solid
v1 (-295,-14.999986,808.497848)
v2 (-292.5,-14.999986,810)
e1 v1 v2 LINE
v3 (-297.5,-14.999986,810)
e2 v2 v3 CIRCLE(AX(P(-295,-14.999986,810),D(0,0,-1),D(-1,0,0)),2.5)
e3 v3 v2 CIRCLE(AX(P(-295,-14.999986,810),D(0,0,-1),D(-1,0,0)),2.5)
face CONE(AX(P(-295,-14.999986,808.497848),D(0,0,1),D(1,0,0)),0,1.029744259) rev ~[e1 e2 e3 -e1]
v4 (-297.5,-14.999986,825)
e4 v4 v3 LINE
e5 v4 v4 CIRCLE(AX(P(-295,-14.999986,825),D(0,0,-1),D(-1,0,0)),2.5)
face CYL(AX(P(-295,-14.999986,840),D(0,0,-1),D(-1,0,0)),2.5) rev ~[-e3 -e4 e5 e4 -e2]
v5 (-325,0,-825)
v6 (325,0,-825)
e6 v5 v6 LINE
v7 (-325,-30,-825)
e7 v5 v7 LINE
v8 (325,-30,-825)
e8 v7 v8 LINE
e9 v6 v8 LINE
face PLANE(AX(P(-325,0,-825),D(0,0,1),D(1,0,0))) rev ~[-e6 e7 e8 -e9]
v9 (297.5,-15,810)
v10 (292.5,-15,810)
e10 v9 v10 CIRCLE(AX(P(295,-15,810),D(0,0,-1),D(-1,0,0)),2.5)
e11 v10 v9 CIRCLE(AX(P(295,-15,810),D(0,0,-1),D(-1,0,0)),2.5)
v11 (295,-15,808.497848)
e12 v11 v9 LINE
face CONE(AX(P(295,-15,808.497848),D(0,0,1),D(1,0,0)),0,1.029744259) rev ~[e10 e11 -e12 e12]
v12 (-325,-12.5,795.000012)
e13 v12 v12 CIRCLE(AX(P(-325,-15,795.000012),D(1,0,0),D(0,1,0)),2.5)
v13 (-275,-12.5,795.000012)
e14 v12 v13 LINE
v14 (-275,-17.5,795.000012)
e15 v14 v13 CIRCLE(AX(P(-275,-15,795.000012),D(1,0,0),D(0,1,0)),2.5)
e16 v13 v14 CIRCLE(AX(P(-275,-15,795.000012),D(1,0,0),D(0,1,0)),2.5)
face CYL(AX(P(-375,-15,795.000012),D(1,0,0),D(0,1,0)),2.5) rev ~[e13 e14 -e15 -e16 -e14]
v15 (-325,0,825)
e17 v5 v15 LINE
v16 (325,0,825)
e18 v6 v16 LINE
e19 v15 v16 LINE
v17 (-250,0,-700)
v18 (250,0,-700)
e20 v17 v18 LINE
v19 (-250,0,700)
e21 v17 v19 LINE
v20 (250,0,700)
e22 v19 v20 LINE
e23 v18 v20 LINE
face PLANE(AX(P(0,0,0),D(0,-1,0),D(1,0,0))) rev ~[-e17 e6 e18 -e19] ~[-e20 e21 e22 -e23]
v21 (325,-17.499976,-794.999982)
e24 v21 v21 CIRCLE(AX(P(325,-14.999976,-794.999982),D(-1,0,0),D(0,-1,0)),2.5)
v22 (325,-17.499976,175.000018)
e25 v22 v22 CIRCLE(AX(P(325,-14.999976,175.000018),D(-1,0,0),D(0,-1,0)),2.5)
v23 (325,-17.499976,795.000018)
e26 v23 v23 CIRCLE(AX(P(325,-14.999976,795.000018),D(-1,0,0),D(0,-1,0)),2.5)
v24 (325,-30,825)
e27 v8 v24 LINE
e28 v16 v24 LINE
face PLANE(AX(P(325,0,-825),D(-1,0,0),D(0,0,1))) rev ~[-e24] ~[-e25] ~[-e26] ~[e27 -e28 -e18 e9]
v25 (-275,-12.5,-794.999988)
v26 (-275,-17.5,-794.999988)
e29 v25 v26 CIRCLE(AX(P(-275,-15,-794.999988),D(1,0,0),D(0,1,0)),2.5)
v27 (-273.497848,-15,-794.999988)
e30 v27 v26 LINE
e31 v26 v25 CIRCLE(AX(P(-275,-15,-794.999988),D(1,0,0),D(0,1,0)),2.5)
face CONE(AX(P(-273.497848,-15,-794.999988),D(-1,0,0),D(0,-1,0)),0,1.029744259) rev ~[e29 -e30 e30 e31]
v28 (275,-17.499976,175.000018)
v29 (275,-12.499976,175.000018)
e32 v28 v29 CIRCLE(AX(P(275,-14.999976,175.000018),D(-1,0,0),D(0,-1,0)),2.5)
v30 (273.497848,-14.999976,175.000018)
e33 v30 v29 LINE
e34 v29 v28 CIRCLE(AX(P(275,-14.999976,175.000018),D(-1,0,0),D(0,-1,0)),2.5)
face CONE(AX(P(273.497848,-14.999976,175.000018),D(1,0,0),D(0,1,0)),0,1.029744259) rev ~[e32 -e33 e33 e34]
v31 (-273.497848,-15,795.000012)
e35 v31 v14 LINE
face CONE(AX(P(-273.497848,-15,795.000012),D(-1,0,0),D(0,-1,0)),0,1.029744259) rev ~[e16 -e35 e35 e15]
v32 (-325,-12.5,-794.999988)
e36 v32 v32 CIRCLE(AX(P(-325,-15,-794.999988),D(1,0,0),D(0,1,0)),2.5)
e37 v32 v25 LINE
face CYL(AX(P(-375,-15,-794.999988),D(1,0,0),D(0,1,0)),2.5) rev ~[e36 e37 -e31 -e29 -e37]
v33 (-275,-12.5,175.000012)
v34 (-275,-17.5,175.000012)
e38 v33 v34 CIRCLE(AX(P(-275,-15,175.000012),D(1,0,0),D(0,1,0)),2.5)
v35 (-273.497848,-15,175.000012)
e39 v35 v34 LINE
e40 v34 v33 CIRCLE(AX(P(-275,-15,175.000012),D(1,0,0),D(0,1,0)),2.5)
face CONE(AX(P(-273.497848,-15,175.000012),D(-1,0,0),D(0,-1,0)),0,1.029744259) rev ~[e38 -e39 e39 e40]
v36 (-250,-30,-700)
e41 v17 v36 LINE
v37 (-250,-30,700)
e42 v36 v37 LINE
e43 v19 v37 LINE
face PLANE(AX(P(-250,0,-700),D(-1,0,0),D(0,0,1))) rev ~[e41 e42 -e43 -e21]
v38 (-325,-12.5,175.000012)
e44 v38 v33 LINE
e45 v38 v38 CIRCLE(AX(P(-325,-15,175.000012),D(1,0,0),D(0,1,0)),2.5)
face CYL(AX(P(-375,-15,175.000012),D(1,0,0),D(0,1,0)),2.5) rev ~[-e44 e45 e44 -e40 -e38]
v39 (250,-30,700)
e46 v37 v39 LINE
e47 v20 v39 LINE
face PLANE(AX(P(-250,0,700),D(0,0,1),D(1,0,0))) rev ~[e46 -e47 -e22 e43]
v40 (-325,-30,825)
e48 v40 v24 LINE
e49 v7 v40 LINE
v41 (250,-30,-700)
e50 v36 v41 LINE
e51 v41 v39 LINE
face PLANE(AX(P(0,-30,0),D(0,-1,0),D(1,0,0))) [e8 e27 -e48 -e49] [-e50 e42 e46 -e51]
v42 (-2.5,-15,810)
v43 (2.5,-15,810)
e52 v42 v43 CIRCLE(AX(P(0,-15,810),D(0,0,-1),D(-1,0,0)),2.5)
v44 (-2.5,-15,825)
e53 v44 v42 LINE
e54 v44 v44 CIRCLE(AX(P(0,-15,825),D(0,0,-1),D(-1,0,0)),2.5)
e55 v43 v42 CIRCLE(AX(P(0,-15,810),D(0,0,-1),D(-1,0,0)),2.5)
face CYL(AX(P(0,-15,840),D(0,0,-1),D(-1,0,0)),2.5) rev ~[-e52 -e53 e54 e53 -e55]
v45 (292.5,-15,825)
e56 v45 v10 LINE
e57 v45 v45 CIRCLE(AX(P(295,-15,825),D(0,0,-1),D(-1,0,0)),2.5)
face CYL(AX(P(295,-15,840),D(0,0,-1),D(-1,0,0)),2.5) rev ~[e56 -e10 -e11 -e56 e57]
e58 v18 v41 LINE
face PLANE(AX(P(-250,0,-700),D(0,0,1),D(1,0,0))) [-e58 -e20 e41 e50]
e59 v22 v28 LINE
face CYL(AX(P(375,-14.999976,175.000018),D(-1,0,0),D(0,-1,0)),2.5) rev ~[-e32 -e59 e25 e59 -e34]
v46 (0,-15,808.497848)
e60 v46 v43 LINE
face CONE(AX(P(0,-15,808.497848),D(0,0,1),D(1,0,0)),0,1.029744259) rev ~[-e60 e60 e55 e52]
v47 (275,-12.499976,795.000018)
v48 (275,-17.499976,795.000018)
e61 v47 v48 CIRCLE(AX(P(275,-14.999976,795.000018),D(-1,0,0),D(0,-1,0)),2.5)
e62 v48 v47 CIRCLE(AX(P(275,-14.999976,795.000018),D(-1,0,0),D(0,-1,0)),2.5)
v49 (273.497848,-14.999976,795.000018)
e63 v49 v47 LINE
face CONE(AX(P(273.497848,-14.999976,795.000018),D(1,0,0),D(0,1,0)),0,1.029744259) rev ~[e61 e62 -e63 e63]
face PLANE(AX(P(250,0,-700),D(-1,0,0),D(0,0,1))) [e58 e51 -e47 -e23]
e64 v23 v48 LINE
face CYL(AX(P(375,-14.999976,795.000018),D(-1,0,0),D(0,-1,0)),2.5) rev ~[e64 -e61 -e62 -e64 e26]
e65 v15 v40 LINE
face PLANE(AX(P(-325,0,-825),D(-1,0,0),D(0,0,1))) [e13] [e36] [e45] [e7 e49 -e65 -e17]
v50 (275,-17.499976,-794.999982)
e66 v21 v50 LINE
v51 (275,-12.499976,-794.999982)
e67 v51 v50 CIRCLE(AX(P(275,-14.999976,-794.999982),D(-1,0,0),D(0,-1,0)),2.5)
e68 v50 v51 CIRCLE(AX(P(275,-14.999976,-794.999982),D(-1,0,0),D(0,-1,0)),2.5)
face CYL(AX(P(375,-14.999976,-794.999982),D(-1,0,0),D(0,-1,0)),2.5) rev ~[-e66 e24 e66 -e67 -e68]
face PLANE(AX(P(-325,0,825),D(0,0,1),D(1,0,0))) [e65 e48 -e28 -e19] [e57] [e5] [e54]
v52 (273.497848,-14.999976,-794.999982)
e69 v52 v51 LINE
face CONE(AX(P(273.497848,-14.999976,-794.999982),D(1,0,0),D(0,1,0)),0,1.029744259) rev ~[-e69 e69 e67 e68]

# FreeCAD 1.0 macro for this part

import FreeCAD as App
import Part
import Sketcher
from FreeCAD import Vector


def add_polygon(sketch, points):
    """Adds a closed chain of lines whose ends are joined by coincident constraints."""
    first, n = sketch.GeometryCount, len(points)
    for a, b in zip(points, points[1:] + points[:1]):
        sketch.addGeometry(Part.LineSegment(App.Vector(*a, 0), App.Vector(*b, 0)), False)
    for i in range(n):
        sketch.addConstraint(Sketcher.Constraint("Coincident", first + i, 2, first + (i + 1) % n, 1))

doc = App.newDocument("Part")
params = doc.addObject("Spreadsheet::Sheet", "Params")
for row, (alias, value) in enumerate([
    ("sketch1_width", "650 mm"),
    ("sketch1_width2", "500 mm"),
    ("sketch1_height", "1650 mm"),
    ("sketch1_height2", "1400 mm"),
    ("pad1_length", "30 mm"),
    ("sketch2_diameter", "5 mm"),
    ("hole_diameter", "5 mm"),
    ("hole_depth", "50 mm"),
    ("sketch3_diameter", "5 mm"),
    ("hole2_diameter", "5 mm"),
    ("hole2_depth", "50 mm"),
    ("sketch4_diameter", "5 mm"),
    ("hole3_diameter", "5 mm"),
    ("hole3_depth", "15 mm"),
], start=1):
    params.set(f"A{row}", alias)
    params.set(f"B{row}", "=" + value)
    params.setAlias(f"B{row}", alias)

body = doc.addObject("PartDesign::Body", "Body")

# Sketch on XZ plane
sketch1 = body.newObject("Sketcher::SketchObject", "Sketch")
sketch1.AttachmentSupport = (doc.getObject("XZ_Plane"), [""])
sketch1.MapMode = "FlatFace"
add_polygon(sketch1, [(-325, 825), (-325, -825), (325, -825), (325, 825)])  # lines 0-3
add_polygon(sketch1, [(250, -700), (-250, -700), (-250, 700), (250, 700)])  # lines 4-7
sketch1.addConstraint([
    Sketcher.Constraint("Vertical", 0),
    Sketcher.Constraint("Horizontal", 1),
    Sketcher.Constraint("Vertical", 2),
    Sketcher.Constraint("Horizontal", 3),
    Sketcher.Constraint("Horizontal", 4),
    Sketcher.Constraint("Vertical", 5),
    Sketcher.Constraint("Horizontal", 6),
    Sketcher.Constraint("Vertical", 7),
    Sketcher.Constraint("Symmetric", 0, 2, 2, 2, -1, 1),
    Sketcher.Constraint("Symmetric", 4, 2, 6, 2, -1, 1),
    Sketcher.Constraint("DistanceX", 1, 1, 1, 2, 650.0),
    Sketcher.Constraint("DistanceX", 4, 2, 4, 1, 500.0),
    Sketcher.Constraint("DistanceY", 0, 2, 0, 1, 1650.0),
    Sketcher.Constraint("DistanceY", 5, 1, 5, 2, 1400.0),
])
sketch1.setExpression("Constraints[18]", "Params.sketch1_width")
sketch1.setExpression("Constraints[19]", "Params.sketch1_width2")
sketch1.setExpression("Constraints[20]", "Params.sketch1_height")
sketch1.setExpression("Constraints[21]", "Params.sketch1_height2")
pad1 = body.newObject("PartDesign::Pad", "Pad")
pad1.Profile = sketch1
pad1.setExpression("Length", "Params.pad1_length")

# Sketch on YZ plane
sketch2 = body.newObject("Sketcher::SketchObject", "Sketch001")
sketch2.AttachmentSupport = (doc.getObject("YZ_Plane"), [""])
sketch2.MapMode = "FlatFace"
sketch2.AttachmentOffset = App.Placement(Vector(0, 0, -325), App.Rotation())
sketch2.addGeometry([
    Part.Circle(Vector(-15, 795, 0), Vector(0, 0, 1), 2.5),
    Part.Circle(Vector(-15, 175, 0), Vector(0, 0, 1), 2.5),
    Part.Circle(Vector(-15, -795, 0), Vector(0, 0, 1), 2.5),
], False)
sketch2.addConstraint([
    Sketcher.Constraint("Equal", 0, 1),
    Sketcher.Constraint("Equal", 1, 2),
    Sketcher.Constraint("Vertical", 0, 3, 1, 3),
    Sketcher.Constraint("Vertical", 1, 3, 2, 3),
    Sketcher.Constraint("Diameter", 0, 5.0),
    Sketcher.Constraint("DistanceX", 0, 3, -1, 1, 15.0),
    Sketcher.Constraint("DistanceY", 1, 3, 0, 3, 620.0),
    Sketcher.Constraint("DistanceY", 2, 3, 1, 3, 970.0),
    Sketcher.Constraint("DistanceY", -1, 1, 0, 3, 795.000012),
])
sketch2.setExpression("Constraints[4]", "Params.sketch2_diameter")
doc.recompute()
hole = body.newObject("PartDesign::Hole", "Hole")
hole.Profile = sketch2
hole.ThreadType = "None"
hole.setExpression("Diameter", "Params.hole_diameter")
hole.DepthType = "Dimension"
hole.setExpression("Depth", "Params.hole_depth")
hole.DrillPoint = "Angled"
hole.DrillPointAngle = 118
hole.Reversed = True

# Sketch on YZ plane
sketch3 = body.newObject("Sketcher::SketchObject", "Sketch002")
sketch3.AttachmentSupport = (doc.getObject("YZ_Plane"), [""])
sketch3.MapMode = "FlatFace"
sketch3.AttachmentOffset = App.Placement(Vector(0, 0, 325), App.Rotation())
sketch3.addGeometry([
    Part.Circle(Vector(-14.999976, 795.000018, 0), Vector(0, 0, 1), 2.5),
    Part.Circle(Vector(-14.999976, 175.000018, 0), Vector(0, 0, 1), 2.5),
    Part.Circle(Vector(-14.999976, -794.999982, 0), Vector(0, 0, 1), 2.5),
], False)
sketch3.addConstraint([
    Sketcher.Constraint("Equal", 0, 1),
    Sketcher.Constraint("Equal", 1, 2),
    Sketcher.Constraint("Vertical", 0, 3, 1, 3),
    Sketcher.Constraint("Vertical", 1, 3, 2, 3),
    Sketcher.Constraint("Diameter", 0, 5.0),
    Sketcher.Constraint("DistanceY", 1, 3, 0, 3, 620.0),
    Sketcher.Constraint("DistanceY", 2, 3, 1, 3, 970.0),
    Sketcher.Constraint("DistanceY", -1, 1, 0, 3, 795.000018),
    Sketcher.Constraint("DistanceX", 0, 3, -1, 1, 14.999976),
])
sketch3.setExpression("Constraints[4]", "Params.sketch3_diameter")
doc.recompute()
hole2 = body.newObject("PartDesign::Hole", "Hole001")
hole2.Profile = sketch3
hole2.ThreadType = "None"
hole2.setExpression("Diameter", "Params.hole2_diameter")
hole2.DepthType = "Dimension"
hole2.setExpression("Depth", "Params.hole2_depth")
hole2.DrillPoint = "Angled"
hole2.DrillPointAngle = 118

# Sketch on XY plane
sketch4 = body.newObject("Sketcher::SketchObject", "Sketch003")
sketch4.AttachmentSupport = (doc.getObject("XY_Plane"), [""])
sketch4.MapMode = "FlatFace"
sketch4.AttachmentOffset = App.Placement(Vector(0, 0, 825), App.Rotation())
sketch4.addGeometry([
    Part.Circle(Vector(-295, -15, 0), Vector(0, 0, 1), 2.5),
    Part.Circle(Vector(0, -15, 0), Vector(0, 0, 1), 2.5),
    Part.Circle(Vector(295, -15, 0), Vector(0, 0, 1), 2.5),
], False)
sketch4.addConstraint([
    Sketcher.Constraint("Equal", 0, 1),
    Sketcher.Constraint("Equal", 1, 2),
    Sketcher.Constraint("PointOnObject", 1, 3, -2),
    Sketcher.Constraint("Horizontal", 1, 3, 2, 3),
    Sketcher.Constraint("Diameter", 0, 5.0),
    Sketcher.Constraint("DistanceX", 0, 3, -1, 1, 295.0),
    Sketcher.Constraint("DistanceY", 1, 3, -1, 1, 15.0),
    Sketcher.Constraint("DistanceX", -1, 1, 2, 3, 295.0),
    Sketcher.Constraint("DistanceY", 0, 3, -1, 1, 14.999986),
])
sketch4.setExpression("Constraints[4]", "Params.sketch4_diameter")
doc.recompute()
hole3 = body.newObject("PartDesign::Hole", "Hole002")
hole3.Profile = sketch4
hole3.ThreadType = "None"
hole3.setExpression("Diameter", "Params.hole3_diameter")
hole3.DepthType = "Dimension"
hole3.setExpression("Depth", "Params.hole3_depth")
hole3.DrillPoint = "Angled"
hole3.DrillPointAngle = 118

doc.recompute()
